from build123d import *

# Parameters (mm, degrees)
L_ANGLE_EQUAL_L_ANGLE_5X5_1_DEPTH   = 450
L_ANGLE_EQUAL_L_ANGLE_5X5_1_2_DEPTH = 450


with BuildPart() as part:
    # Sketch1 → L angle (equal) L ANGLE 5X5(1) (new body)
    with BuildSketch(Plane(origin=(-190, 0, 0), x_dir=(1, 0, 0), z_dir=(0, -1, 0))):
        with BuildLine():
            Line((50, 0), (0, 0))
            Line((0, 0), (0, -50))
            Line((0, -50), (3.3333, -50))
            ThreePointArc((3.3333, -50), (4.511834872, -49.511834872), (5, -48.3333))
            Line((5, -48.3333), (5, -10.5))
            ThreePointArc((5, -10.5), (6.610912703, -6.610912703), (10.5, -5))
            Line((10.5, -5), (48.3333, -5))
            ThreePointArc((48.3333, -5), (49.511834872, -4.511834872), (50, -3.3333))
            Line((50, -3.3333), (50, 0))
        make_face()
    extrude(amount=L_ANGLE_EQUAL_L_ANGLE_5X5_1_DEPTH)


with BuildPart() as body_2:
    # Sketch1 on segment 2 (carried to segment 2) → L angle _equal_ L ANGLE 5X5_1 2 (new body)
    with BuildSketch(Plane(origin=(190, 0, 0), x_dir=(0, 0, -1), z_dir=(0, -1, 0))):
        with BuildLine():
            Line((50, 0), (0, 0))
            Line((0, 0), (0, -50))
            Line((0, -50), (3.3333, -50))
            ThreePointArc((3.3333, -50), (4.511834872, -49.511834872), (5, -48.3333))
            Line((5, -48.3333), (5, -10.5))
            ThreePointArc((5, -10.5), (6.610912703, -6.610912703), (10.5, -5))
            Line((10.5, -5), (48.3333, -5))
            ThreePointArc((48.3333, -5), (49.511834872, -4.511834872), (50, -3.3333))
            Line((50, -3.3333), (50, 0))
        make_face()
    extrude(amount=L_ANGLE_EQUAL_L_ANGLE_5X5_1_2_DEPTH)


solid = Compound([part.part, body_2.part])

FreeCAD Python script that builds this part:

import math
import FreeCAD as App
import Part
import Sketcher

doc = App.newDocument("Part")
body = doc.addObject("PartDesign::Body", "Body")

sketch1 = doc.addObject("Sketcher::SketchObject", "Sketch")
body.addObject(sketch1)
sketch1.AttachmentSupport = (doc.XZ_Plane, [""])
sketch1.MapMode = "FlatFace"
sketch1.addGeometry([
    Part.LineSegment(App.Vector(-140, 0, 0), App.Vector(-190, 0, 0)),
    Part.LineSegment(App.Vector(-190, 0, 0), App.Vector(-190, -50, 0)),
    Part.LineSegment(App.Vector(-190, -50, 0), App.Vector(-186.7, -50, 0)),
    Part.ArcOfCircle(Part.Circle(App.Vector(-186.7, -48.3, 0), App.Vector(0, 0, 1), 1.7), math.radians(-90), math.radians(0)),
    Part.LineSegment(App.Vector(-185, -48.3, 0), App.Vector(-185, -10.5, 0)),
    Part.ArcOfCircle(Part.Circle(App.Vector(-179.5, -10.5, 0), App.Vector(0, 0, 1), 5.5), math.radians(90), math.radians(180)),
    Part.LineSegment(App.Vector(-179.5, -5, 0), App.Vector(-141.7, -5, 0)),
    Part.ArcOfCircle(Part.Circle(App.Vector(-141.7, -3.3, 0), App.Vector(0, 0, 1), 1.7), math.radians(-90), math.radians(0)),
    Part.LineSegment(App.Vector(-140, -3.3, 0), App.Vector(-140, 0, 0)),
], False)
sketch1.addConstraint([
    Sketcher.Constraint("Coincident", 0, 2, 1, 1),
    Sketcher.Constraint("Coincident", 1, 2, 2, 1),
    Sketcher.Constraint("Tangent", 2, 2, 3, 1),
    Sketcher.Constraint("Tangent", 3, 2, 4, 1),
    Sketcher.Constraint("Tangent", 4, 2, 5, 2),
    Sketcher.Constraint("Tangent", 5, 1, 6, 1),
    Sketcher.Constraint("Tangent", 6, 2, 7, 1),
    Sketcher.Constraint("Tangent", 7, 2, 8, 1),
    Sketcher.Constraint("Coincident", 8, 2, 0, 1),
    Sketcher.Constraint("Horizontal", 0),
    Sketcher.Constraint("Vertical", 1),
    Sketcher.Constraint("Horizontal", 2),
    Sketcher.Constraint("Vertical", 4),
    Sketcher.Constraint("Horizontal", 6),
    Sketcher.Constraint("Vertical", 8),
    Sketcher.Constraint("Equal", 3, 7),
    Sketcher.Constraint("PointOnObject", 0, 2, -1),
    Sketcher.Constraint("Equal", 0, 1),
    Sketcher.Constraint("Equal", 6, 4),
    Sketcher.Constraint("Radius", 5, 5.5),
    Sketcher.Constraint("DistanceX", 0, 2, 0, 1, 50.0),
    Sketcher.Constraint("DistanceX", 0, 2, -1, 1, 190.0),
    Sketcher.Constraint("DistanceX", 3, 2, -1, 1, 185.0),
    Sketcher.Constraint("Radius", 3, 1.6667),
])
pad1 = doc.addObject("PartDesign::Pad", "Pad")
body.addObject(pad1)
pad1.Profile = sketch1
pad1.Length = 450
body2 = doc.addObject("PartDesign::Body", "Body001")

sketch2 = doc.addObject("Sketcher::SketchObject", "Sketch001")
body2.addObject(sketch2)
sketch2.AttachmentSupport = (doc.getObject("XZ_Plane001"), [""])
sketch2.MapMode = "FlatFace"
sketch2.addGeometry([
    Part.LineSegment(App.Vector(190, -50, 0), App.Vector(190, 0, 0)),
    Part.LineSegment(App.Vector(190, 0, 0), App.Vector(140, 0, 0)),
    Part.LineSegment(App.Vector(140, 0, 0), App.Vector(140, -3.3, 0)),
    Part.ArcOfCircle(Part.Circle(App.Vector(141.7, -3.3, 0), App.Vector(0, 0, 1), 1.7), math.radians(-180), math.radians(-90)),
    Part.LineSegment(App.Vector(141.7, -5, 0), App.Vector(179.5, -5, 0)),
    Part.ArcOfCircle(Part.Circle(App.Vector(179.5, -10.5, 0), App.Vector(0, 0, 1), 5.5), math.radians(0), math.radians(90)),
    Part.LineSegment(App.Vector(185, -10.5, 0), App.Vector(185, -48.3, 0)),
    Part.ArcOfCircle(Part.Circle(App.Vector(186.7, -48.3, 0), App.Vector(0, 0, 1), 1.7), math.radians(-180), math.radians(-90)),
    Part.LineSegment(App.Vector(186.7, -50, 0), App.Vector(190, -50, 0)),
], False)
sketch2.addConstraint([
    Sketcher.Constraint("Coincident", 0, 2, 1, 1),
    Sketcher.Constraint("Coincident", 1, 2, 2, 1),
    Sketcher.Constraint("Tangent", 2, 2, 3, 1),
    Sketcher.Constraint("Tangent", 3, 2, 4, 1),
    Sketcher.Constraint("Tangent", 4, 2, 5, 2),
    Sketcher.Constraint("Tangent", 5, 1, 6, 1),
    Sketcher.Constraint("Tangent", 6, 2, 7, 1),
    Sketcher.Constraint("Tangent", 7, 2, 8, 1),
    Sketcher.Constraint("Coincident", 8, 2, 0, 1),
    Sketcher.Constraint("Vertical", 0),
    Sketcher.Constraint("Horizontal", 1),
    Sketcher.Constraint("Vertical", 2),
    Sketcher.Constraint("Horizontal", 4),
    Sketcher.Constraint("Vertical", 6),
    Sketcher.Constraint("Horizontal", 8),
    Sketcher.Constraint("Equal", 3, 7),
    Sketcher.Constraint("PointOnObject", 0, 2, -1),
    Sketcher.Constraint("Equal", 1, 0),
    Sketcher.Constraint("Equal", 8, 2),
    Sketcher.Constraint("Radius", 5, 5.5),
    Sketcher.Constraint("DistanceX", 1, 2, 1, 1, 50.0),
    Sketcher.Constraint("DistanceX", -1, 1, 0, 2, 190.0),
    Sketcher.Constraint("DistanceY", 3, 2, -1, 1, 5.0),
    Sketcher.Constraint("Radius", 3, 1.6667),
])
pad2 = doc.addObject("PartDesign::Pad", "Pad001")
body2.addObject(pad2)
pad2.Profile = sketch2
pad2.Length = 450

doc.recompute()
